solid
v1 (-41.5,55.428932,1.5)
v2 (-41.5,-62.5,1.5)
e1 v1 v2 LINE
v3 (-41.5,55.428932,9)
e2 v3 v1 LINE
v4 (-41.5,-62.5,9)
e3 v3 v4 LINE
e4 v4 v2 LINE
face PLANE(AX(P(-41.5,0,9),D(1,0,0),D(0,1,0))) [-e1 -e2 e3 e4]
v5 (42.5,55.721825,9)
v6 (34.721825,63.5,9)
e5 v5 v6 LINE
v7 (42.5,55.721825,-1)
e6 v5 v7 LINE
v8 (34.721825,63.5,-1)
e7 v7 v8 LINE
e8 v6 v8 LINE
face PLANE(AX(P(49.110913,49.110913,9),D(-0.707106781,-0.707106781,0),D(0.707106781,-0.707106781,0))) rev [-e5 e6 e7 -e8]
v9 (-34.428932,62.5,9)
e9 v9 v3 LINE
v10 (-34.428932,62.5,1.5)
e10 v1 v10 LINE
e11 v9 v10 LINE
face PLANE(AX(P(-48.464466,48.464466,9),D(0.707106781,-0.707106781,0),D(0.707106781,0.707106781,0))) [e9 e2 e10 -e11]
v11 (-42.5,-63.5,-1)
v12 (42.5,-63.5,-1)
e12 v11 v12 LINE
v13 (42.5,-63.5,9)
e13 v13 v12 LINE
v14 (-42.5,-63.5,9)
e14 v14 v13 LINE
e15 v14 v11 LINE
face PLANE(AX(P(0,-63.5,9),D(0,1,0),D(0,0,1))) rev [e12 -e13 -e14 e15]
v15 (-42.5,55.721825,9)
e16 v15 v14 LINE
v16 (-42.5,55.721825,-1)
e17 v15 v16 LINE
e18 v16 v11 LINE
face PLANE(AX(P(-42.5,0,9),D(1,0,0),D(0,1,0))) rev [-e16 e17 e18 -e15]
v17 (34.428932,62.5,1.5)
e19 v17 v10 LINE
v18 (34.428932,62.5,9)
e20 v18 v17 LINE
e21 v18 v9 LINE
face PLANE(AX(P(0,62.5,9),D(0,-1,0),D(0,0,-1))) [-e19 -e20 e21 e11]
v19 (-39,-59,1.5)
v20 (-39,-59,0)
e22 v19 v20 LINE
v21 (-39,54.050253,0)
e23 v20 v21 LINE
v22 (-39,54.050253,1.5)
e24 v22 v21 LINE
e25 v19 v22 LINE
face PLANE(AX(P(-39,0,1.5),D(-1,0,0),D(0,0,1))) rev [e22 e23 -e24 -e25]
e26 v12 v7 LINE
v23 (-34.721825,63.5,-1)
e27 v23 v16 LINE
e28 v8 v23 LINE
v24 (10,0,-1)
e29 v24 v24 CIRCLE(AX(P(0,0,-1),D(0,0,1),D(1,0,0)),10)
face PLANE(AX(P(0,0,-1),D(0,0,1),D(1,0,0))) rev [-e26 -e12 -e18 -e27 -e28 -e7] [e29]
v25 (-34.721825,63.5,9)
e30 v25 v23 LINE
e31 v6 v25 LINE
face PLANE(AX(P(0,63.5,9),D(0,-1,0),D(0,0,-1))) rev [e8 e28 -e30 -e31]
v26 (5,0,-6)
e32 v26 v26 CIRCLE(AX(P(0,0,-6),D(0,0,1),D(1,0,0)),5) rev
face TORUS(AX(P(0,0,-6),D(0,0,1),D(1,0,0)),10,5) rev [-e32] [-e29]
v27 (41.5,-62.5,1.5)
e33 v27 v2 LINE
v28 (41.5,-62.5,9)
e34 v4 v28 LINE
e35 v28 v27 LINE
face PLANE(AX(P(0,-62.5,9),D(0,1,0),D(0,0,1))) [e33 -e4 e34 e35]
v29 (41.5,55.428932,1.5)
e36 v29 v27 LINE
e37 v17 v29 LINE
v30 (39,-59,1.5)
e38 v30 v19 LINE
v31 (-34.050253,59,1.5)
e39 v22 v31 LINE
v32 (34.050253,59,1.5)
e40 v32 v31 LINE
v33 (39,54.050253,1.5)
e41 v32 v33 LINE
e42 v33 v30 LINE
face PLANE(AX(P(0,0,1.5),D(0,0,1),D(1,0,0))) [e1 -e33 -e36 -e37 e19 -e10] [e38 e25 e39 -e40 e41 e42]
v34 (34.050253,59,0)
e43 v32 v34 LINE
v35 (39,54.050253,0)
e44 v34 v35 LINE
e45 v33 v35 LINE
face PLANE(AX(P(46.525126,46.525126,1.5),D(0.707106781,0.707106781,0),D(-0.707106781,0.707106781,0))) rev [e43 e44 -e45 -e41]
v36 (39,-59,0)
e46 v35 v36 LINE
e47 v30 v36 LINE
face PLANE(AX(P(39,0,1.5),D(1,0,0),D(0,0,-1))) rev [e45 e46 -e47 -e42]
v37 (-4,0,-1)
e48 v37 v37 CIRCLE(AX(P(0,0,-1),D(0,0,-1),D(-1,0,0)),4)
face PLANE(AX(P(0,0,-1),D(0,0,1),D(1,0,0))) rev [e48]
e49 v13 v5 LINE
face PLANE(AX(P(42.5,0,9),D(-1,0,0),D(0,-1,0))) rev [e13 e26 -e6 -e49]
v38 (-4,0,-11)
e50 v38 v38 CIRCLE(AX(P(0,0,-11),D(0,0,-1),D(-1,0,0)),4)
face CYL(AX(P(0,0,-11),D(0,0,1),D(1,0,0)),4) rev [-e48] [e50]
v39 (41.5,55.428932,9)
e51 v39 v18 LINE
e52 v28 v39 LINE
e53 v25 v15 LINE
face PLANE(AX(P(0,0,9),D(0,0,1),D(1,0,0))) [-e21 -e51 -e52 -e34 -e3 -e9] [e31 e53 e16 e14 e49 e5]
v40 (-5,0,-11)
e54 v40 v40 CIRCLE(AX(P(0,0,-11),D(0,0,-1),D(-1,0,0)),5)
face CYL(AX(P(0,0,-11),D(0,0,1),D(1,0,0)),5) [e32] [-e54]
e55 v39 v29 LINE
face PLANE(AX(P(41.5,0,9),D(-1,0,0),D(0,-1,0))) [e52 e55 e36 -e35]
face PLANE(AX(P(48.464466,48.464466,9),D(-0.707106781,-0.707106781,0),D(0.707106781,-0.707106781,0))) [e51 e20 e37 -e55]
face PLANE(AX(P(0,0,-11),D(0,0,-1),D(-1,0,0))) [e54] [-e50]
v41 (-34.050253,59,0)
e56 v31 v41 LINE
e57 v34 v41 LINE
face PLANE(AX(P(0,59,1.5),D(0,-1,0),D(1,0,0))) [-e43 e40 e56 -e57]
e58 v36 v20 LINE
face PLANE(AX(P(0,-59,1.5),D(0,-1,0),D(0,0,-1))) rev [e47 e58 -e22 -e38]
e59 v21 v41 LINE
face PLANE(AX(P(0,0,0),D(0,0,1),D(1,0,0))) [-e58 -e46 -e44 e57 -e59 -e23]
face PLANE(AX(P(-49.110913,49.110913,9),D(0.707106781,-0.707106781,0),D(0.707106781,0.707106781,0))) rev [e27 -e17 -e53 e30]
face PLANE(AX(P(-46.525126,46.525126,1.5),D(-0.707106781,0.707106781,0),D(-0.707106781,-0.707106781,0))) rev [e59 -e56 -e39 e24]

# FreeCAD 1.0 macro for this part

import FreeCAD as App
import Part
import Sketcher
from FreeCAD import Vector


def edges_at(feature, points):
    """Names of the edges that pass closest to the given points."""
    edges = feature.Shape.Edges
    near = lambda p: min(range(len(edges)), key=lambda i: edges[i].distToShape(Part.Vertex(*p))[0])
    return sorted({f"Edge{near(p) + 1}" for p in points})


def add_polygon(sketch, points):
    """Adds a closed chain of lines whose ends are joined by coincident constraints."""
    first, n = sketch.GeometryCount, len(points)
    for a, b in zip(points, points[1:] + points[:1]):
        sketch.addGeometry(Part.LineSegment(App.Vector(*a, 0), App.Vector(*b, 0)), False)
    for i in range(n):
        sketch.addConstraint(Sketcher.Constraint("Coincident", first + i, 2, first + (i + 1) % n, 1))

doc = App.newDocument("Part")
params = doc.addObject("Spreadsheet::Sheet", "Params")
for row, (alias, value) in enumerate([
    ("sketch1_width", "83 mm"),
    ("sketch1_width2", "78 mm"),
    ("sketch1_length", "10 mm"),
    ("sketch1_length2", "7 mm"),
    ("pad1_length", "1.5 mm"),
    ("sketch2_width", "85 mm"),
    ("sketch2_width2", "83 mm"),
    ("sketch2_length", "11 mm"),
    ("sketch2_length2", "10 mm"),
    ("pad2_length", "9 mm"),
    ("sketch3_width", "85 mm"),
    ("sketch3_length", "11 mm"),
    ("pad3_length", "1 mm"),
    ("sketch4_diameter", "10 mm"),
    ("sketch4_diameter2", "8 mm"),
    ("pad4_length", "10 mm"),
    ("fillet_radius", "5 mm"),
], start=1):
    params.set(f"A{row}", alias)
    params.set(f"B{row}", "=" + value)
    params.setAlias(f"B{row}", alias)

body = doc.addObject("PartDesign::Body", "Body")

# Sketch on XY plane
sketch1 = body.newObject("Sketcher::SketchObject", "Sketch")
sketch1.AttachmentSupport = (doc.getObject("XY_Plane"), [""])
sketch1.MapMode = "FlatFace"
add_polygon(sketch1, [(-42, -62), (42, -62), (42, 55), (34, 62), (-34, 62), (-42, 55)])  # lines 0-5
add_polygon(sketch1, [(-39, 54), (-34, 59), (34, 59), (39, 54), (39, -59), (-39, -59)])  # lines 6-11
sketch1.addConstraint(Sketcher.Constraint("Horizontal", 0))
sketch1.addConstraint(Sketcher.Constraint("Vertical", 1))
sketch1.addConstraint(Sketcher.Constraint("Horizontal", 3))
sketch1.addConstraint(Sketcher.Constraint("Vertical", 5))
sketch1.addConstraint(Sketcher.Constraint("Horizontal", 7))
sketch1.addConstraint(Sketcher.Constraint("Vertical", 9))
sketch1.addConstraint(Sketcher.Constraint("Horizontal", 10))
sketch1.addConstraint(Sketcher.Constraint("Vertical", 11))
sketch1.addConstraint(Sketcher.Constraint("Symmetric", 1, 2, 4, 2, -2))
sketch1.addConstraint(Sketcher.Constraint("Symmetric", 8, 2, 11, 2, -2))
sketch1.addConstraint(Sketcher.Constraint("Perpendicular", 2, 4))
sketch1.addConstraint(Sketcher.Constraint("Parallel", 4, 6))
sketch1.addConstraint(Sketcher.Constraint("Perpendicular", 6, 8))
sketch1.addConstraint(Sketcher.Constraint("Equal", 2, 4))
sketch1.addConstraint(Sketcher.Constraint("DistanceX", 0, 1, 0, 2, 83.0))
sketch1.addConstraint(Sketcher.Constraint("DistanceX", 10, 2, 10, 1, 78.0))
sketch1.addConstraint(Sketcher.Constraint("Distance", 2, 10.0))
sketch1.addConstraint(Sketcher.Constraint("Distance", 6, 7.0))
sketch1.addConstraint(Sketcher.Constraint("DistanceY", -1, 1, 6, 2, 59.0))
sketch1.addConstraint(Sketcher.Constraint("DistanceY", 9, 2, -1, 1, 59.0))
sketch1.addConstraint(Sketcher.Constraint("DistanceY", 0, 2, 2, 2, 125.0))
sketch1.addConstraint(Sketcher.Constraint("DistanceY", 0, 2, -1, 1, 62.5))
sketch1.setExpression("Constraints[26]", "Params.sketch1_width")
sketch1.setExpression("Constraints[27]", "Params.sketch1_width2")
sketch1.setExpression("Constraints[28]", "Params.sketch1_length")
sketch1.setExpression("Constraints[29]", "Params.sketch1_length2")
pad1 = body.newObject("PartDesign::Pad", "Pad")
pad1.Profile = sketch1
pad1.setExpression("Length", "Params.pad1_length")

# Sketch on XY plane
sketch2 = body.newObject("Sketcher::SketchObject", "Sketch001")
sketch2.AttachmentSupport = (doc.getObject("XY_Plane"), [""])
sketch2.MapMode = "FlatFace"
add_polygon(sketch2, [(-42, -64), (42, -64), (42, 56), (35, 64), (-35, 64), (-42, 56)])  # lines 0-5
add_polygon(sketch2, [(42, 55), (42, -62), (-42, -62), (-42, 55), (-34, 62), (34, 62)])  # lines 6-11
sketch2.addConstraint(Sketcher.Constraint("Horizontal", 0))
sketch2.addConstraint(Sketcher.Constraint("Vertical", 1))
sketch2.addConstraint(Sketcher.Constraint("Horizontal", 3))
sketch2.addConstraint(Sketcher.Constraint("Vertical", 5))
sketch2.addConstraint(Sketcher.Constraint("Vertical", 6))
sketch2.addConstraint(Sketcher.Constraint("Horizontal", 7))
sketch2.addConstraint(Sketcher.Constraint("Vertical", 8))
sketch2.addConstraint(Sketcher.Constraint("Horizontal", 10))
sketch2.addConstraint(Sketcher.Constraint("Symmetric", 1, 2, 4, 2, -2))
sketch2.addConstraint(Sketcher.Constraint("Symmetric", 8, 2, 11, 2, -2))
sketch2.addConstraint(Sketcher.Constraint("Perpendicular", 2, 4))
sketch2.addConstraint(Sketcher.Constraint("Parallel", 4, 9))
sketch2.addConstraint(Sketcher.Constraint("Perpendicular", 9, 11))
sketch2.addConstraint(Sketcher.Constraint("Equal", 2, 4))
sketch2.addConstraint(Sketcher.Constraint("DistanceX", 0, 1, 0, 2, 85.0))
sketch2.addConstraint(Sketcher.Constraint("DistanceX", 7, 2, 7, 1, 83.0))
sketch2.addConstraint(Sketcher.Constraint("Distance", 2, 11.0))
sketch2.addConstraint(Sketcher.Constraint("Distance", 9, 10.0))
sketch2.addConstraint(Sketcher.Constraint("DistanceY", 0, 2, 2, 2, 127.0))
sketch2.addConstraint(Sketcher.Constraint("DistanceY", 0, 2, 6, 2, 1.0))
sketch2.addConstraint(Sketcher.Constraint("DistanceY", 9, 2, 3, 2, 1.0))
sketch2.addConstraint(Sketcher.Constraint("DistanceY", 0, 2, -1, 1, 63.5))
sketch2.setExpression("Constraints[26]", "Params.sketch2_width")
sketch2.setExpression("Constraints[27]", "Params.sketch2_width2")
sketch2.setExpression("Constraints[28]", "Params.sketch2_length")
sketch2.setExpression("Constraints[29]", "Params.sketch2_length2")
pad2 = body.newObject("PartDesign::Pad", "Pad001")
pad2.Profile = sketch2
pad2.setExpression("Length", "Params.pad2_length")

# Sketch on XY plane
sketch3 = body.newObject("Sketcher::SketchObject", "Sketch002")
sketch3.AttachmentSupport = (doc.getObject("XY_Plane"), [""])
sketch3.MapMode = "FlatFace"
add_polygon(sketch3, [(-35, 64), (-42, 56), (-42, -64), (42, -64), (42, 56), (35, 64)])  # lines 0-5
sketch3.addConstraint(Sketcher.Constraint("Vertical", 1))
sketch3.addConstraint(Sketcher.Constraint("Horizontal", 2))
sketch3.addConstraint(Sketcher.Constraint("Vertical", 3))
sketch3.addConstraint(Sketcher.Constraint("Horizontal", 5))
sketch3.addConstraint(Sketcher.Constraint("Symmetric", 0, 2, 3, 2, -2))
sketch3.addConstraint(Sketcher.Constraint("Perpendicular", 0, 4))
sketch3.addConstraint(Sketcher.Constraint("Equal", 0, 4))
sketch3.addConstraint(Sketcher.Constraint("DistanceX", 2, 1, 2, 2, 85.0))
sketch3.addConstraint(Sketcher.Constraint("Distance", 0, 11.0))
sketch3.addConstraint(Sketcher.Constraint("DistanceY", 2, 2, 4, 2, 127.0))
sketch3.addConstraint(Sketcher.Constraint("DistanceY", 1, 2, -1, 1, 63.5))
sketch3.setExpression("Constraints[13]", "Params.sketch3_width")
sketch3.setExpression("Constraints[14]", "Params.sketch3_length")
pad3 = body.newObject("PartDesign::Pad", "Pad002")
pad3.Profile = sketch3
pad3.setExpression("Length", "Params.pad3_length")
pad3.Reversed = True

# Sketch on XY plane
sketch4 = body.newObject("Sketcher::SketchObject", "Sketch003")
sketch4.AttachmentSupport = (doc.getObject("XY_Plane"), [""])
sketch4.MapMode = "FlatFace"
sketch4.AttachmentOffset = App.Placement(Vector(0, 0, -1), App.Rotation())
sketch4.addGeometry(Part.Circle(Vector(0, 0, 0), Vector(0, 0, 1), 5), False)
sketch4.addGeometry(Part.Circle(Vector(0, 0, 0), Vector(0, 0, 1), 4), False)
sketch4.addConstraint(Sketcher.Constraint("Coincident", 0, 3, -1, 1))
sketch4.addConstraint(Sketcher.Constraint("Coincident", 1, 3, -1, 1))
sketch4.addConstraint(Sketcher.Constraint("Diameter", 0, 10.0))
sketch4.addConstraint(Sketcher.Constraint("Diameter", 1, 8.0))
sketch4.setExpression("Constraints[2]", "Params.sketch4_diameter")
sketch4.setExpression("Constraints[3]", "Params.sketch4_diameter2")
pad4 = body.newObject("PartDesign::Pad", "Pad003")
pad4.Profile = sketch4
pad4.setExpression("Length", "Params.pad4_length")
pad4.Reversed = True
doc.recompute()

fillet = body.newObject("PartDesign::Fillet", "Fillet")
fillet.Base = (pad4, edges_at(pad4, [(-5, 0, -1)]))
fillet.setExpression("Radius", "Params.fillet_radius")

doc.recompute()
